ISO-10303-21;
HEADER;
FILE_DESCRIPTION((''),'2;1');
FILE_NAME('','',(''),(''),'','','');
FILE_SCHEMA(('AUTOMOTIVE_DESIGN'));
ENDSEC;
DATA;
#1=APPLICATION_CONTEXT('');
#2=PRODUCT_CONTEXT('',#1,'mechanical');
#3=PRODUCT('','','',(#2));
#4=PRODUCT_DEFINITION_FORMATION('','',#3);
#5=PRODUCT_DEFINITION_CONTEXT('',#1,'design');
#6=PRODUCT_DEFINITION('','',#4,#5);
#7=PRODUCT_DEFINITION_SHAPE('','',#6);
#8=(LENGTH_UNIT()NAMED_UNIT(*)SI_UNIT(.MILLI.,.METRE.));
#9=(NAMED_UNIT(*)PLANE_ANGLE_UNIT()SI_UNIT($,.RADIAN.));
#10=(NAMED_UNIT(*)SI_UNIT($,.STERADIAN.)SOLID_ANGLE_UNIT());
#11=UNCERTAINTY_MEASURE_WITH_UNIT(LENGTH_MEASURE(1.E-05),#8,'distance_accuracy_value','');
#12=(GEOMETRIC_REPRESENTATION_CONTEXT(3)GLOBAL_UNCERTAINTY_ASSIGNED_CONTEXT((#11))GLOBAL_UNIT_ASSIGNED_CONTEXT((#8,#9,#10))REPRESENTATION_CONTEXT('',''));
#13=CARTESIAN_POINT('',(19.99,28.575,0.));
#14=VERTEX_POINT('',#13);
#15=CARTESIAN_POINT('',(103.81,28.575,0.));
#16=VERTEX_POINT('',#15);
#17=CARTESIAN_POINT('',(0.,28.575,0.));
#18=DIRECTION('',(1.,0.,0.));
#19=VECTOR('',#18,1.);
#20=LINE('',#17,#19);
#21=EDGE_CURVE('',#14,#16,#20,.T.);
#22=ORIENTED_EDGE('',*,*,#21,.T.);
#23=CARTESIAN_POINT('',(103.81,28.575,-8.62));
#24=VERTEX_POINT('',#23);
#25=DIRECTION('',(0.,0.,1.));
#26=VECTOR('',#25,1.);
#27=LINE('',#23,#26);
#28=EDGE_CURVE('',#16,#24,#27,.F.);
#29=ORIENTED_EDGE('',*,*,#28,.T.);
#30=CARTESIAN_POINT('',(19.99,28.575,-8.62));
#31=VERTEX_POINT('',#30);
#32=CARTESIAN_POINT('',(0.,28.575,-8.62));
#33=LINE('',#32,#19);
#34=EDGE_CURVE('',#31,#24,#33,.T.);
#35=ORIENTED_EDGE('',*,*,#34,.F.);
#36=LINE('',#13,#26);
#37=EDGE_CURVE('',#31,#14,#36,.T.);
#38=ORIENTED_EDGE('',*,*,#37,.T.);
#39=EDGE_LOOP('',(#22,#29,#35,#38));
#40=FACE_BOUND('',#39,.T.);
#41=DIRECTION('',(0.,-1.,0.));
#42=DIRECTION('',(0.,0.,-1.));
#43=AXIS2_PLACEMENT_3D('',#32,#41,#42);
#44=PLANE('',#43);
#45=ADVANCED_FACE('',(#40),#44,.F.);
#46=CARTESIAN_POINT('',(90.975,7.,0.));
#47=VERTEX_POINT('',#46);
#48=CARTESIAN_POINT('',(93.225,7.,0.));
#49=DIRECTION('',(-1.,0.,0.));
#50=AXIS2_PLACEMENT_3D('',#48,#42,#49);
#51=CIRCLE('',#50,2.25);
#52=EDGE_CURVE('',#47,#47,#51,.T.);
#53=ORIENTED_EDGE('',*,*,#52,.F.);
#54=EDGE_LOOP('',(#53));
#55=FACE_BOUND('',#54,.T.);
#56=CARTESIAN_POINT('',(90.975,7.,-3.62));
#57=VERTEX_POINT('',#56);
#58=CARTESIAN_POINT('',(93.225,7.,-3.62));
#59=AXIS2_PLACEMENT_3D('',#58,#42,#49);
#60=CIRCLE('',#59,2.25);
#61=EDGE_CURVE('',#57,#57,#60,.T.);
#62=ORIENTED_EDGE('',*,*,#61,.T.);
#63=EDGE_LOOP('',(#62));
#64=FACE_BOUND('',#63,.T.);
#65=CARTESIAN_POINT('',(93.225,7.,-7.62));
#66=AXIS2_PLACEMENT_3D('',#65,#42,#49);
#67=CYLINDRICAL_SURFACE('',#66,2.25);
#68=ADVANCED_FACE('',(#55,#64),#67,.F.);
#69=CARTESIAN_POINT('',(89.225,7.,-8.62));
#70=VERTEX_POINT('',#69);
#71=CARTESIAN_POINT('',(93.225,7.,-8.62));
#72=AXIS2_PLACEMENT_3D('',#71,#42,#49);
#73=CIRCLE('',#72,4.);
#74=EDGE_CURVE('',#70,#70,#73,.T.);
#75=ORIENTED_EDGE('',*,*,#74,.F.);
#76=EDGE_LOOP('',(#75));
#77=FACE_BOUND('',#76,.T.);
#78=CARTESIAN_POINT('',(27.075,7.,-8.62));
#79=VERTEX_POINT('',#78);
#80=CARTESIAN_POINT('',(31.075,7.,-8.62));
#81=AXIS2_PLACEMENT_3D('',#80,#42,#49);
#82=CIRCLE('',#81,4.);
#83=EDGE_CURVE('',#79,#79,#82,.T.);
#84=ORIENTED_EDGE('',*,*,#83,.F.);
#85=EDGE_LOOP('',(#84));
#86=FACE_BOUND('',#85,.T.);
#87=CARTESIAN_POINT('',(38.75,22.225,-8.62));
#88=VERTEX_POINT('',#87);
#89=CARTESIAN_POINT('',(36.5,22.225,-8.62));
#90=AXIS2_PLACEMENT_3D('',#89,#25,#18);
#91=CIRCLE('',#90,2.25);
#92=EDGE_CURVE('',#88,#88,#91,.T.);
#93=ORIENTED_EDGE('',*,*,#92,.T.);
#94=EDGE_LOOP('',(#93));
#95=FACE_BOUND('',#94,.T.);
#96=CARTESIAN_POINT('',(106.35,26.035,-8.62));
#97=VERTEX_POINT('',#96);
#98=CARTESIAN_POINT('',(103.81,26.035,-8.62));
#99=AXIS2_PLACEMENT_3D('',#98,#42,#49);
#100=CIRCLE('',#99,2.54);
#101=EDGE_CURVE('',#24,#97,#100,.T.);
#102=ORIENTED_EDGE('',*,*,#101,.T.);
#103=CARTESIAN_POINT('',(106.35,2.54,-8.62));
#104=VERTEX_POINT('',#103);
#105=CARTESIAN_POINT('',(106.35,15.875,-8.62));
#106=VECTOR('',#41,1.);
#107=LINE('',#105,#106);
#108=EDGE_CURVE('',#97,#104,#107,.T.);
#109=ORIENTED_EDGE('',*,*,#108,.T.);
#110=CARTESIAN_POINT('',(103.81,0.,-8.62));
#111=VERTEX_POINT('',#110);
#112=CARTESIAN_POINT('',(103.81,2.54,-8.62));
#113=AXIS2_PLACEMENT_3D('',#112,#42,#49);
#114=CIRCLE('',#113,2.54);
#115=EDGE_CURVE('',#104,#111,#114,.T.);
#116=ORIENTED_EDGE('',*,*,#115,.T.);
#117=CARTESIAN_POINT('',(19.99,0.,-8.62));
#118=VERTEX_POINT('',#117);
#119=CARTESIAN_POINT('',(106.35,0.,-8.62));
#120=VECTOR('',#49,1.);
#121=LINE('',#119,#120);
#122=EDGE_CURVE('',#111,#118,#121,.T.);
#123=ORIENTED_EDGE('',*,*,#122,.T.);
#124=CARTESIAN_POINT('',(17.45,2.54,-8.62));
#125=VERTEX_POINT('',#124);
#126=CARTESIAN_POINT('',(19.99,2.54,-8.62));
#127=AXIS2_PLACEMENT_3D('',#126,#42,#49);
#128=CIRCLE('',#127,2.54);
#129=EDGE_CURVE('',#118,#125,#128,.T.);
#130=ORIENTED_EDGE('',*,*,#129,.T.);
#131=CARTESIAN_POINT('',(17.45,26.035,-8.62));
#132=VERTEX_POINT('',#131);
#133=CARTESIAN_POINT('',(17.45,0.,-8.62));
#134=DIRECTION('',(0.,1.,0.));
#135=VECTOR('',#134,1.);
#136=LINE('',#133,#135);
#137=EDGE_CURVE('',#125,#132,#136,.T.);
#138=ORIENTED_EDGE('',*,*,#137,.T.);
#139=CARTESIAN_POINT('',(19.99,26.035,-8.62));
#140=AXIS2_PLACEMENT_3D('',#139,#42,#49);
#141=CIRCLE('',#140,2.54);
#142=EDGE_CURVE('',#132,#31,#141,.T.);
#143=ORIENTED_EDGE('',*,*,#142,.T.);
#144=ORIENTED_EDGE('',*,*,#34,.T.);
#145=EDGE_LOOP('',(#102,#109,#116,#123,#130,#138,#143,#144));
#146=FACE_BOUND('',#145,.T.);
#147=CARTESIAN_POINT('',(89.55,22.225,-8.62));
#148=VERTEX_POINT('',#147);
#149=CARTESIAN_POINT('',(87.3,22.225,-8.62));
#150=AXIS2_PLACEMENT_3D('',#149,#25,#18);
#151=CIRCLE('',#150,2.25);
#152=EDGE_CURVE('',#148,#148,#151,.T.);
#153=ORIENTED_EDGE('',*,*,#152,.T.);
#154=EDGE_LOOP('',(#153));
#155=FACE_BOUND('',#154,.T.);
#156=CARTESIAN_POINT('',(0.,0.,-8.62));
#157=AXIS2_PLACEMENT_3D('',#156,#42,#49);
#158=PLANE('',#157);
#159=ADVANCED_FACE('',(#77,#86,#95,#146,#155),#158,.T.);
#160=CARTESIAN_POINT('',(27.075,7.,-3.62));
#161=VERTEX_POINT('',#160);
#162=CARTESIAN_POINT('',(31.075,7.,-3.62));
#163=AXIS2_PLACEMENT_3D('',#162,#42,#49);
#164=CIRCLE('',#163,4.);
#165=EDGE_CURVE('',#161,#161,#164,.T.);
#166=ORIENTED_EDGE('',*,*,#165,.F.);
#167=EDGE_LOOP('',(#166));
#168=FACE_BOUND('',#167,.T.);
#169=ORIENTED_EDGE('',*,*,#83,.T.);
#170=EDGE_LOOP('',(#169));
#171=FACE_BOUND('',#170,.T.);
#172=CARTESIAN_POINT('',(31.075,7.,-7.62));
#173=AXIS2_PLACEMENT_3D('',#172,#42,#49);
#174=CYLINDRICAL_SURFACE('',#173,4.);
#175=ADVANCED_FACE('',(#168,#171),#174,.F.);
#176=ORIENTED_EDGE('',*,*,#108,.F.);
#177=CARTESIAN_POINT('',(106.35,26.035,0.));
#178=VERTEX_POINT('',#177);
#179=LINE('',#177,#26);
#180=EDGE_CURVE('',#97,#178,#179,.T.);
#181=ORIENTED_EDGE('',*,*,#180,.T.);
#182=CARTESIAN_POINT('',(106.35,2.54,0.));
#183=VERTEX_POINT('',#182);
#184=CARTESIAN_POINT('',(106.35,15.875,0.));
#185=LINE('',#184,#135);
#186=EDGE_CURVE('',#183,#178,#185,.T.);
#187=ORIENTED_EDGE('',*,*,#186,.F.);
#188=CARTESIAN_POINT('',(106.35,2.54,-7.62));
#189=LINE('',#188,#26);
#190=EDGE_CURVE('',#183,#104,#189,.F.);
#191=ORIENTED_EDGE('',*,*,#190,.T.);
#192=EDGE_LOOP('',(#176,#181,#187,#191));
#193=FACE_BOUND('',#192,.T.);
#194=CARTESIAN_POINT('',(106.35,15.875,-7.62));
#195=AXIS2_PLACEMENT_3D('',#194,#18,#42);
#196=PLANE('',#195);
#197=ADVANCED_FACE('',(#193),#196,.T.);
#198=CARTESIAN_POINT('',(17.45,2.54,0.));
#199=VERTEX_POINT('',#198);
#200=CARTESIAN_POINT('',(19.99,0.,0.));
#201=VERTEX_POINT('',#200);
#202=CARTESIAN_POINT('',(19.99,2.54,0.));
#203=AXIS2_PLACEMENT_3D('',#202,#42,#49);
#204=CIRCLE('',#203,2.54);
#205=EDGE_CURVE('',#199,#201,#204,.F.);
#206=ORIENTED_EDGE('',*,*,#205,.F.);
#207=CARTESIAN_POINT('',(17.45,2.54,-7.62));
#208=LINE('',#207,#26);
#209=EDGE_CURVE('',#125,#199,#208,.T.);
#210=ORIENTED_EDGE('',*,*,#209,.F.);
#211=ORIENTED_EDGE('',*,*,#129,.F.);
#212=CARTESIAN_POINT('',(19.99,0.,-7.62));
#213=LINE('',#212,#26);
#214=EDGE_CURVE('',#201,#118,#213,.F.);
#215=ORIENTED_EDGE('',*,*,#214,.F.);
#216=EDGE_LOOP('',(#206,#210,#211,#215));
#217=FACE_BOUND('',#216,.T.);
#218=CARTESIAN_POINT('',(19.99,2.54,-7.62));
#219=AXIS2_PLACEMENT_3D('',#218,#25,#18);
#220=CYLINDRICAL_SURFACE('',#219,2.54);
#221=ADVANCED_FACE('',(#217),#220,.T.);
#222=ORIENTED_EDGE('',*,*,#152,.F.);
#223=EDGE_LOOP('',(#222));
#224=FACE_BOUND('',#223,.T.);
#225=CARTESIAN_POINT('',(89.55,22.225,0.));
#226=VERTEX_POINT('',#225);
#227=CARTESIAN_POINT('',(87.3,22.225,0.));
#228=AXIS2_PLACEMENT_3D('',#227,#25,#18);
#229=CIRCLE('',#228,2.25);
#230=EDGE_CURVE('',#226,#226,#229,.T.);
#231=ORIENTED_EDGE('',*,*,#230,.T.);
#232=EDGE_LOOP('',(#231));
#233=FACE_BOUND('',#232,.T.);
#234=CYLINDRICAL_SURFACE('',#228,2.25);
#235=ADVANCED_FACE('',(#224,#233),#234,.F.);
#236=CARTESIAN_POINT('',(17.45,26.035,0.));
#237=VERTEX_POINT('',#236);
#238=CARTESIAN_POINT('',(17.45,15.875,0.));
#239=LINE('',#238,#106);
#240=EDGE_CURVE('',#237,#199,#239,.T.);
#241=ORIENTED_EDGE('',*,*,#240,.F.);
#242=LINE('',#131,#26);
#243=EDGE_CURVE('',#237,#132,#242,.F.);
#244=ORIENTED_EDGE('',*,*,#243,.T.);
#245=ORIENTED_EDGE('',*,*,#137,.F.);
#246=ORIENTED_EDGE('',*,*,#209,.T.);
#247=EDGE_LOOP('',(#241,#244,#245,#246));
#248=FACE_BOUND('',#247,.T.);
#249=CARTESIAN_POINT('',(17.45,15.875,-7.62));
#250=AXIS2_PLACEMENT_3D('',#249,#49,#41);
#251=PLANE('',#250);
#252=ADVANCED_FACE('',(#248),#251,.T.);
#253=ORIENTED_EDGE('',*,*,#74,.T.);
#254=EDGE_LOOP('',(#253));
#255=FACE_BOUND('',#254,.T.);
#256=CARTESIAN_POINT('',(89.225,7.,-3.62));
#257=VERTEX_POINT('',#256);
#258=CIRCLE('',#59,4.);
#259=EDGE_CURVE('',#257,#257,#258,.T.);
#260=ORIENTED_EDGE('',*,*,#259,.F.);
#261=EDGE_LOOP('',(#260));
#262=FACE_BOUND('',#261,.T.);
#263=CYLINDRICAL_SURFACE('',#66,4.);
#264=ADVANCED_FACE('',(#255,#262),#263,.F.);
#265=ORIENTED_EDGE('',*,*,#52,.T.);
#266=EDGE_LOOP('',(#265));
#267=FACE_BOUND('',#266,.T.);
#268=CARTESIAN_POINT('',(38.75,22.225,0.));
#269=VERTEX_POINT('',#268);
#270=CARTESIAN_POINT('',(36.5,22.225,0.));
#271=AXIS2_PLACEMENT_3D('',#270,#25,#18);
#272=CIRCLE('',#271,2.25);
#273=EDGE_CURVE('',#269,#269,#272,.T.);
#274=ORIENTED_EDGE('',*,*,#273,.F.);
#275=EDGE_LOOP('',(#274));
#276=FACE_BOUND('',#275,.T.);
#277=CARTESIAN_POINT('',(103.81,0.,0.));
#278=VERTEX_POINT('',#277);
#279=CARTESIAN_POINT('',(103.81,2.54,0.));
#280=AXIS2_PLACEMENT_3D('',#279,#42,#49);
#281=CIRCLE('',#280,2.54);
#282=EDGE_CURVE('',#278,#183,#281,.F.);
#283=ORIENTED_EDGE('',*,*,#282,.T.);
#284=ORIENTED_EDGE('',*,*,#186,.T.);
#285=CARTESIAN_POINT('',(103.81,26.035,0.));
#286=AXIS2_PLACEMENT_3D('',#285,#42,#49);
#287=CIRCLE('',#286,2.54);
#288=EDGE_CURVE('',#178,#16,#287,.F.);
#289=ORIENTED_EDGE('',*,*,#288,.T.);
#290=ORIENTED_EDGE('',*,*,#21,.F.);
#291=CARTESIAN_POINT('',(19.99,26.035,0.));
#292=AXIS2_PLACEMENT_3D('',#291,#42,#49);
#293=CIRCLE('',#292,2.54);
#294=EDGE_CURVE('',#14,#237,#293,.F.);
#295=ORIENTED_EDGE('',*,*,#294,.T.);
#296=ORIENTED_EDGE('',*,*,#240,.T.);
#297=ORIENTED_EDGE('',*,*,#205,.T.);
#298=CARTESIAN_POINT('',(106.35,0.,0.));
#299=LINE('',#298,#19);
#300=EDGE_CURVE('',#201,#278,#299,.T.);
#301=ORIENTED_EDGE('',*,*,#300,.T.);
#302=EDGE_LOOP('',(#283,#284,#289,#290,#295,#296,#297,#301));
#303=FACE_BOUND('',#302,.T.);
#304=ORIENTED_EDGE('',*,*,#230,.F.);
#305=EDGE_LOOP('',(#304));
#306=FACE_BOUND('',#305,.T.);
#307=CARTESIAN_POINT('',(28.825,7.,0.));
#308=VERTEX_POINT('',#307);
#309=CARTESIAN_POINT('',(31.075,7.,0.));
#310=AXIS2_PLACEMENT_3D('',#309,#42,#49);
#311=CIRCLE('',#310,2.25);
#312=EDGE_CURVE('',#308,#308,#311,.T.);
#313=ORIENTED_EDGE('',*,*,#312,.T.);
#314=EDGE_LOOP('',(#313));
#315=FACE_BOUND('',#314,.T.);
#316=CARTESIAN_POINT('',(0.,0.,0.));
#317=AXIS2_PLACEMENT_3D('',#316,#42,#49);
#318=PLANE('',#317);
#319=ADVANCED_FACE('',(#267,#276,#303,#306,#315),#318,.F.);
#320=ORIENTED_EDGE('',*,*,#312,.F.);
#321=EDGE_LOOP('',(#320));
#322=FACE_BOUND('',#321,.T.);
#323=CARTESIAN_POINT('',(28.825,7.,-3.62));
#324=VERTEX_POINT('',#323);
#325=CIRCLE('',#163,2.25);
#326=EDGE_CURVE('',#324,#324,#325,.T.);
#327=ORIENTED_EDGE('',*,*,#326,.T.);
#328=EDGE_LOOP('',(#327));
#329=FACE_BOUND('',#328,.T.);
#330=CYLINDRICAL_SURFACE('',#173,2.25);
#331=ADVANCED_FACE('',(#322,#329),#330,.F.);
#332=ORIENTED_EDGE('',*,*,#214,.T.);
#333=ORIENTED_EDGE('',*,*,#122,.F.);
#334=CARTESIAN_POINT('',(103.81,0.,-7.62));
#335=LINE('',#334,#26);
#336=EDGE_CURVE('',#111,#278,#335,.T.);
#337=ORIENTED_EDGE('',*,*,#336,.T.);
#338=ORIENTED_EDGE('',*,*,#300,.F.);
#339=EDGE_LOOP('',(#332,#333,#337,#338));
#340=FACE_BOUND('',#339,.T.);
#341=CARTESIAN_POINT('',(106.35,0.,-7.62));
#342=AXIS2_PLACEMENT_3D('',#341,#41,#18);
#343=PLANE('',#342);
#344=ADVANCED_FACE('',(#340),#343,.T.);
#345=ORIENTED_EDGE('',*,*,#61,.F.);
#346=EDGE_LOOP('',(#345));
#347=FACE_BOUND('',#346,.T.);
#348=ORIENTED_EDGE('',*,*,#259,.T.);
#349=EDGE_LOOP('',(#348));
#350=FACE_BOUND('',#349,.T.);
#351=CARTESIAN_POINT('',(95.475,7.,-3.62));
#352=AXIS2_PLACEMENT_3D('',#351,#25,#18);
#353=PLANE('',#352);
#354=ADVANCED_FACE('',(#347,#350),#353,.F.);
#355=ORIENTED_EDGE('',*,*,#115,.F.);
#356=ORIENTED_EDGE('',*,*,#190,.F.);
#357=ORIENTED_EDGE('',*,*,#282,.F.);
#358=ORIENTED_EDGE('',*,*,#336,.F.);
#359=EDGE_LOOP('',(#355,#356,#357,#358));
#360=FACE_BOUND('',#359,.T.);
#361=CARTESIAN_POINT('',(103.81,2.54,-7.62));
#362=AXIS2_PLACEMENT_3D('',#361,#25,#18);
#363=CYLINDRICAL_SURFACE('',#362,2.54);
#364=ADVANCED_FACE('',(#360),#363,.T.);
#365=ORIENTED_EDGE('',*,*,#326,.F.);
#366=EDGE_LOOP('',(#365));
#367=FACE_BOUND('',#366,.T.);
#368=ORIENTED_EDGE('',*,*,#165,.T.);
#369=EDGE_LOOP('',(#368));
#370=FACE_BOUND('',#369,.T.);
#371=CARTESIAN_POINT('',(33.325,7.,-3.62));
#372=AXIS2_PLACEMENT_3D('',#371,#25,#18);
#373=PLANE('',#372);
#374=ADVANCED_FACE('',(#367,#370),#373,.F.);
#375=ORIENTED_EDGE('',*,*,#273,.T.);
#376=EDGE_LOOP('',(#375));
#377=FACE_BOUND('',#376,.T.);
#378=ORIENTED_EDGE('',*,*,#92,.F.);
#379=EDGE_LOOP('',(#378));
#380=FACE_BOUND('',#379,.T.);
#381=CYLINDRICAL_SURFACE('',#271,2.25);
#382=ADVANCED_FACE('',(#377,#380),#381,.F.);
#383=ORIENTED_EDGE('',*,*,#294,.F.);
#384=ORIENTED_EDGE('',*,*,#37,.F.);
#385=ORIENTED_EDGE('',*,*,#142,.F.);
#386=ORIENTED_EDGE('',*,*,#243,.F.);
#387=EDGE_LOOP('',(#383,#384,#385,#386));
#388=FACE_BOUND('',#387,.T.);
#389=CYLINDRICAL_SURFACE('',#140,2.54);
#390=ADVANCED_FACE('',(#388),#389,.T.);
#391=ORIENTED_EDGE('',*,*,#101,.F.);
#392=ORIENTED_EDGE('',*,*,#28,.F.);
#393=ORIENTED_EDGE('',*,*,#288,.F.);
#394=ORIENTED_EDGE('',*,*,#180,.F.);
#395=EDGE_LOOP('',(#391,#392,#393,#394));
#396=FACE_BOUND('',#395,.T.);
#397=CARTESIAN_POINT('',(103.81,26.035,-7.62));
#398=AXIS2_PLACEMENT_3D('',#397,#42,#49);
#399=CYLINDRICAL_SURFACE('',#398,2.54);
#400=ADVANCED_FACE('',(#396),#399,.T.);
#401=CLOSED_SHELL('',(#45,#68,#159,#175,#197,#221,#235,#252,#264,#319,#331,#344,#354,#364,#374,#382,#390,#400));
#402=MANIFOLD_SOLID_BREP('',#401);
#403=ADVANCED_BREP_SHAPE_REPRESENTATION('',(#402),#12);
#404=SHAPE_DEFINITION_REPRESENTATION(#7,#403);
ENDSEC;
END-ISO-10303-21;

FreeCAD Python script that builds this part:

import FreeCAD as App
import Part
import Sketcher
Q = App.Units.Quantity


def edges_at(feature, points):
    """Names of the edges that pass closest to the given points."""
    edges = feature.Shape.Edges
    near = lambda p: min(range(len(edges)), key=lambda i: edges[i].distToShape(Part.Vertex(*p))[0])
    return sorted({f"Edge{near(p) + 1}" for p in points})

doc = App.newDocument("Part")
body = doc.addObject("PartDesign::Body", "Body")

# Sketch on XY plane
sketch1 = body.newObject("Sketcher::SketchObject", "Sketch")
sketch1.AttachmentSupport = (doc.getObject("XY_Plane"), [""])
sketch1.MapMode = "FlatFace"
sketch1.addGeometry([
    Part.LineSegment(App.Vector(17, 16, 0), App.Vector(17, 0, 0)),
    Part.LineSegment(App.Vector(17, 0, 0), App.Vector(106, 0, 0)),
    Part.LineSegment(App.Vector(106, 0, 0), App.Vector(106, 16, 0)),
    Part.LineSegment(App.Vector(106, 16, 0), App.Vector(17, 16, 0)),
], False)
sketch1.addConstraint([
    Sketcher.Constraint("Coincident", 0, 2, 1, 1),
    Sketcher.Constraint("Coincident", 1, 2, 2, 1),
    Sketcher.Constraint("Coincident", 2, 2, 3, 1),
    Sketcher.Constraint("Coincident", 3, 2, 0, 1),
    Sketcher.Constraint("Vertical", 0),
    Sketcher.Constraint("Horizontal", 1),
    Sketcher.Constraint("Vertical", 2),
    Sketcher.Constraint("Horizontal", 3),
    Sketcher.Constraint("PointOnObject", 0, 2, -1),
    Sketcher.Constraint("DistanceX", 1, 1, 1, 2, Q("3.5 in")),
    Sketcher.Constraint("DistanceY", 0, 2, 0, 1, Q("0.625 in")),
    Sketcher.Constraint("DistanceX", -1, 1, 0, 2, Q("17.45 mm")),
])
pad1 = body.newObject("PartDesign::Pad", "Pad")
pad1.Profile = sketch1
pad1.Length = Q("0.3 in")
pad1.Reversed = True

# Sketch on XY plane
sketch2 = body.newObject("Sketcher::SketchObject", "Sketch001")
sketch2.AttachmentSupport = (doc.getObject("XY_Plane"), [""])
sketch2.MapMode = "FlatFace"
sketch2.AttachmentOffset = App.Placement(App.Vector(0, 0, -0.3 * 25.4), App.Rotation())
sketch2.addGeometry([
    Part.Circle(App.Vector(93.2, 7, 0), App.Vector(0, 0, 1), 2.2),
    Part.Circle(App.Vector(31.1, 7, 0), App.Vector(0, 0, 1), 2.2),
], False)
sketch2.addConstraint([
    Sketcher.Constraint("Equal", 0, 1),
    Sketcher.Constraint("Horizontal", 0, 3, 1, 3),
    Sketcher.Constraint("Diameter", 0, Q("4.5 mm")),
    Sketcher.Constraint("DistanceX", -1, 1, 0, 3, Q("93.225 mm")),
    Sketcher.Constraint("DistanceY", -1, 1, 0, 3, Q("7 mm")),
    Sketcher.Constraint("DistanceX", -1, 1, 1, 3, Q("31.075 mm")),
])
doc.recompute()
hole = body.newObject("PartDesign::Hole", "Hole")
hole.Profile = sketch2
hole.ThreadType = "None"
hole.Diameter = 4.5
hole.DepthType = "ThroughAll"
hole.HoleCutType = "Counterbore"
hole.HoleCutDiameter = 8
hole.HoleCutDepth = 4
hole.Reversed = True

# Sketch on XY plane
sketch3 = body.newObject("Sketcher::SketchObject", "Sketch002")
sketch3.AttachmentSupport = (doc.getObject("XY_Plane"), [""])
sketch3.MapMode = "FlatFace"
sketch3.AttachmentOffset = App.Placement(App.Vector(0, 0, -0.3 * 25.4), App.Rotation())
sketch3.addGeometry([
    Part.LineSegment(App.Vector(106.3, 15.9, 0), App.Vector(106.3, 0, 0)),  # 0
    Part.LineSegment(App.Vector(106.3, 0, 0), App.Vector(17.4, 0, 0)),  # 1
    Part.LineSegment(App.Vector(17.4, 0, 0), App.Vector(17.4, 15.9, 0)),  # 2
    Part.LineSegment(App.Vector(17.4, 15.9, 0), App.Vector(106.3, 15.9, 0)),  # 3
    Part.Circle(App.Vector(93.2, 7, 0), App.Vector(0, 0, 1), 4),  # 4
    Part.Circle(App.Vector(31.1, 7, 0), App.Vector(0, 0, 1), 4),  # 5
], False)
sketch3.addConstraint([
    Sketcher.Constraint("Coincident", 0, 2, 1, 1),
    Sketcher.Constraint("Coincident", 1, 2, 2, 1),
    Sketcher.Constraint("Coincident", 2, 2, 3, 1),
    Sketcher.Constraint("Coincident", 3, 2, 0, 1),
    Sketcher.Constraint("Vertical", 0),
    Sketcher.Constraint("Horizontal", 1),
    Sketcher.Constraint("Vertical", 2),
    Sketcher.Constraint("Horizontal", 3),
    Sketcher.Constraint("Equal", 4, 5),
    Sketcher.Constraint("PointOnObject", 0, 2, -1),
    Sketcher.Constraint("Horizontal", 4, 3, 5, 3),
    Sketcher.Constraint("DistanceX", 1, 2, 1, 1, Q("3.5 in")),
    Sketcher.Constraint("Diameter", 4, Q("8 mm")),
    Sketcher.Constraint("DistanceY", 0, 2, 0, 1, Q("0.625 in")),
    Sketcher.Constraint("DistanceX", -1, 1, 4, 3, Q("93.225 mm")),
    Sketcher.Constraint("DistanceY", -1, 1, 4, 3, Q("7 mm")),
    Sketcher.Constraint("DistanceX", -1, 1, 5, 3, Q("31.075 mm")),
    Sketcher.Constraint("DistanceX", -1, 1, 0, 2, Q("106.35 mm")),
])
pad2 = body.newObject("PartDesign::Pad", "Pad001")
pad2.Profile = sketch3
pad2.Length = 1
pad2.Reversed = True

# Sketch on XY plane
sketch4 = body.newObject("Sketcher::SketchObject", "Sketch003")
sketch4.AttachmentSupport = (doc.getObject("XY_Plane"), [""])
sketch4.MapMode = "FlatFace"
sketch4.addGeometry([
    Part.LineSegment(App.Vector(17, 29, 0), App.Vector(17, 16, 0)),
    Part.LineSegment(App.Vector(17, 16, 0), App.Vector(106, 16, 0)),
    Part.LineSegment(App.Vector(106, 16, 0), App.Vector(106, 29, 0)),
    Part.LineSegment(App.Vector(106, 29, 0), App.Vector(17, 29, 0)),
], False)
sketch4.addConstraint([
    Sketcher.Constraint("Coincident", 0, 2, 1, 1),
    Sketcher.Constraint("Coincident", 1, 2, 2, 1),
    Sketcher.Constraint("Coincident", 2, 2, 3, 1),
    Sketcher.Constraint("Coincident", 3, 2, 0, 1),
    Sketcher.Constraint("Vertical", 0),
    Sketcher.Constraint("Horizontal", 1),
    Sketcher.Constraint("Vertical", 2),
    Sketcher.Constraint("Horizontal", 3),
    Sketcher.Constraint("DistanceX", 1, 1, 1, 2, Q("3.5 in")),
    Sketcher.Constraint("DistanceY", 0, 2, 0, 1, Q("0.5 in")),
    Sketcher.Constraint("DistanceY", -1, 1, 0, 2, Q("0.625 in")),
    Sketcher.Constraint("DistanceX", -1, 1, 0, 2, Q("17.45 mm")),
])
pad3 = body.newObject("PartDesign::Pad", "Pad002")
pad3.Profile = sketch4
pad3.Length = 8.62
pad3.Reversed = True

# Sketch on XY plane
sketch5 = body.newObject("Sketcher::SketchObject", "Sketch004")
sketch5.AttachmentSupport = (doc.getObject("XY_Plane"), [""])
sketch5.MapMode = "FlatFace"
sketch5.addGeometry([
    Part.Circle(App.Vector(36.5, 22.2, 0), App.Vector(0, 0, 1), 2.2),
    Part.Circle(App.Vector(87.3, 22.2, 0), App.Vector(0, 0, 1), 2.2),
], False)
sketch5.addConstraint([
    Sketcher.Constraint("Equal", 0, 1),
    Sketcher.Constraint("Horizontal", 0, 3, 1, 3),
    Sketcher.Constraint("DistanceX", 0, 3, 1, 3, Q("2 in")),
    Sketcher.Constraint("Diameter", 0, Q("4.5 mm")),
    Sketcher.Constraint("DistanceY", -1, 1, 0, 3, Q("0.875 in")),
    Sketcher.Constraint("DistanceX", -1, 1, 0, 3, Q("36.5 mm")),
])
doc.recompute()
hole2 = body.newObject("PartDesign::Hole", "Hole001")
hole2.Profile = sketch5
hole2.ThreadType = "None"
hole2.Diameter = 4.5
hole2.DepthType = "ThroughAll"
doc.recompute()

fillet = body.newObject("PartDesign::Fillet", "Fillet")
fillet.Base = (hole2, edges_at(hole2, [
    (17.45, 28.575, -4.31),
    (106.35, 28.575, -4.31),
    (106.35, 0, -4.31),
    (17.45, 0, -4.31),
]))
fillet.Radius = Q("0.1 in")

doc.recompute()
